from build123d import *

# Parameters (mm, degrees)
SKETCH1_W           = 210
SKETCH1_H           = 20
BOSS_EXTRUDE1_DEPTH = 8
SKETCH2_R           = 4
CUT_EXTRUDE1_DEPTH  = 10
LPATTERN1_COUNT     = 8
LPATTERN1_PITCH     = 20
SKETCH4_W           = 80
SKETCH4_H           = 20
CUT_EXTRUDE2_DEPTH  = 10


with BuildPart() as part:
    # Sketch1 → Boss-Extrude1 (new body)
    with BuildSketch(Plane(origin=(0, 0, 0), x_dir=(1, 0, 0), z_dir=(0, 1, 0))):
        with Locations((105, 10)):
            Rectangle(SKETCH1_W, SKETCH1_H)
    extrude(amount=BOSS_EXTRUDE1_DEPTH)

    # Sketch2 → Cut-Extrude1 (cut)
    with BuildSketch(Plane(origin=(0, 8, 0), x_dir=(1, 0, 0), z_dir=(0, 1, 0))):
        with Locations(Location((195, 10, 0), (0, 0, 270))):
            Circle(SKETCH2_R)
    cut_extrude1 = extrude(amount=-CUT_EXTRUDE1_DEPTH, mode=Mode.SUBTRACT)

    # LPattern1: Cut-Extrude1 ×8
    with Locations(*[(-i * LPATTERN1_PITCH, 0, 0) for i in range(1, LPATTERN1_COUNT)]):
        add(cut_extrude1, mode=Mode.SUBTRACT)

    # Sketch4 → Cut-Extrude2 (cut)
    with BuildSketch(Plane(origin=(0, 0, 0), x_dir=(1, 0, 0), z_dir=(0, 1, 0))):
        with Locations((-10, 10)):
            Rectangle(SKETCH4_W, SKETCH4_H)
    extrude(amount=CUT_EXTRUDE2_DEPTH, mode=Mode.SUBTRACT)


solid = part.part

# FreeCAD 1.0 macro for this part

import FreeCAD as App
import Part
import Sketcher

V = App.Vector


def add_polygon(sketch, points):
    """Adds a closed chain of lines whose ends are joined by coincident constraints."""
    first, n = sketch.GeometryCount, len(points)
    for a, b in zip(points, points[1:] + points[:1]):
        sketch.addGeometry(Part.LineSegment(App.Vector(*a, 0), App.Vector(*b, 0)), False)
    for i in range(n):
        sketch.addConstraint(Sketcher.Constraint("Coincident", first + i, 2, first + (i + 1) % n, 1))

doc = App.newDocument("Part")
body = doc.addObject("PartDesign::Body", "Body")

# Sketch on XZ plane
sketch1 = body.newObject("Sketcher::SketchObject", "Sketch")
sketch1.AttachmentSupport = (doc.getObject("XZ_Plane"), [""])
sketch1.MapMode = "FlatFace"
add_polygon(sketch1, [(0, -20), (0, 0), (210, 0), (210, -20)])  # lines 0-3
sketch1.addConstraint([
    Sketcher.Constraint("Vertical", 0),
    Sketcher.Constraint("Horizontal", 1),
    Sketcher.Constraint("Vertical", 2),
    Sketcher.Constraint("Horizontal", 3),
    Sketcher.Constraint("Coincident", 0, 2, -1, 1),
    Sketcher.Constraint("DistanceX", 1, 1, 1, 2, 210.0),
    Sketcher.Constraint("DistanceY", 0, 1, 0, 2, 20.0),
])
pad1 = body.newObject("PartDesign::Pad", "Pad")
pad1.Profile = sketch1
pad1.Length = 8
pad1.Reversed = True

# Sketch on XZ plane
sketch2 = body.newObject("Sketcher::SketchObject", "Sketch001")
sketch2.AttachmentSupport = (doc.getObject("XZ_Plane"), [""])
sketch2.MapMode = "FlatFace"
sketch2.AttachmentOffset = App.Placement(V(0, 0, -8), App.Rotation())
sketch2.addGeometry(Part.Circle(V(195, -10, 0), V(0, 0, 1), 4), False)
sketch2.addConstraint([
    Sketcher.Constraint("Diameter", 0, 8.0),
    Sketcher.Constraint("DistanceX", -1, 1, 0, 3, 195.0),
    Sketcher.Constraint("DistanceY", 0, 3, -1, 1, 10.0),
])
pocket1 = body.newObject("PartDesign::Pocket", "Pocket")
pocket1.Profile = sketch2
pocket1.Length = 10
pocket1.Reversed = True
doc.recompute()

linearpattern = body.newObject("PartDesign::LinearPattern", "LinearPattern")
linearpattern.Originals = [pocket1]
linearpattern.Direction = (doc.getObject("X_Axis"), [""])
linearpattern.Mode = "offset"
linearpattern.Offset = 20
linearpattern.Occurrences = 8
linearpattern.Reversed = True
body.Tip = linearpattern

# Sketch on XZ plane
sketch3 = body.newObject("Sketcher::SketchObject", "Sketch002")
sketch3.AttachmentSupport = (doc.getObject("XZ_Plane"), [""])
sketch3.MapMode = "FlatFace"
add_polygon(sketch3, [(-50, -20), (-50, 0), (30, 0), (30, -20)])  # lines 0-3
sketch3.addConstraint([
    Sketcher.Constraint("Vertical", 0),
    Sketcher.Constraint("Horizontal", 1),
    Sketcher.Constraint("Vertical", 2),
    Sketcher.Constraint("Horizontal", 3),
    Sketcher.Constraint("PointOnObject", 0, 2, -1),
    Sketcher.Constraint("DistanceX", 1, 1, 1, 2, 80.0),
    Sketcher.Constraint("DistanceY", 0, 1, 0, 2, 20.0),
    Sketcher.Constraint("DistanceX", 0, 2, -1, 1, 50.0),
])
pocket2 = body.newObject("PartDesign::Pocket", "Pocket001")
pocket2.Profile = sketch3
pocket2.Length = 10

doc.recompute()
